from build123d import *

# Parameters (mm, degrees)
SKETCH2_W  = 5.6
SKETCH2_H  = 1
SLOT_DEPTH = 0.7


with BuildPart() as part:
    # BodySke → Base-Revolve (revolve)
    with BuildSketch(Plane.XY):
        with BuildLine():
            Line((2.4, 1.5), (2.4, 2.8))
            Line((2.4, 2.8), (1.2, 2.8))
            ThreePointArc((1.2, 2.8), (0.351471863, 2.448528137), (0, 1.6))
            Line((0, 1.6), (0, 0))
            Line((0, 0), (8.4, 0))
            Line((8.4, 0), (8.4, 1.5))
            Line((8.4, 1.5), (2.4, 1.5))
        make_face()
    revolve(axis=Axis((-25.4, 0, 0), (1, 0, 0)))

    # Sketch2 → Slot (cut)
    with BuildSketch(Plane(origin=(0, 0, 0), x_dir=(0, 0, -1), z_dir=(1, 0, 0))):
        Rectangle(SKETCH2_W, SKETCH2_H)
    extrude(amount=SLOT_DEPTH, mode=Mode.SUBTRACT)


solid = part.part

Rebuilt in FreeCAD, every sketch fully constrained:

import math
import FreeCAD as App
import Part
import Sketcher


def add_polygon(sketch, points):
    """Adds a closed chain of lines whose ends are joined by coincident constraints."""
    first, n = sketch.GeometryCount, len(points)
    for a, b in zip(points, points[1:] + points[:1]):
        sketch.addGeometry(Part.LineSegment(App.Vector(*a, 0), App.Vector(*b, 0)), False)
    for i in range(n):
        sketch.addConstraint(Sketcher.Constraint("Coincident", first + i, 2, first + (i + 1) % n, 1))

doc = App.newDocument("Part")
params = doc.addObject("Spreadsheet::Sheet", "Params")
for row, (alias, value) in enumerate([
    ("sketch1_radius", "1.2 mm"),
    ("sketch1_width", "6 mm"),
    ("sketch1_width2", "1.2 mm"),
    ("sketch1_height", "1.3 mm"),
    ("sketch1_height2", "1.6 mm"),
    ("revolution_angle", "360 deg"),
    ("sketch2_width", "1 mm"),
    ("sketch2_height", "5.6 mm"),
    ("pocket1_length", "0.7 mm"),
], start=1):
    params.set(f"A{row}", alias)
    params.set(f"B{row}", "=" + value)
    params.setAlias(f"B{row}", alias)

body = doc.addObject("PartDesign::Body", "Body")

# Sketch on XY plane
sketch1 = body.newObject("Sketcher::SketchObject", "Sketch")
sketch1.AttachmentSupport = (doc.getObject("XY_Plane"), [""])
sketch1.MapMode = "FlatFace"
sketch1.addGeometry(Part.LineSegment(App.Vector(2.4, 1.5, 0), App.Vector(2.4, 2.8, 0)), False)
sketch1.addGeometry(Part.LineSegment(App.Vector(2.4, 2.8, 0), App.Vector(1.2, 2.8, 0)), False)
sketch1.addGeometry(Part.ArcOfCircle(Part.Circle(App.Vector(1.2, 1.6, 0), App.Vector(0, 0, 1), 1.2), math.radians(90), math.radians(180)), False)
sketch1.addGeometry(Part.LineSegment(App.Vector(0, 1.6, 0), App.Vector(0, 0, 0)), False)
sketch1.addGeometry(Part.LineSegment(App.Vector(0, 0, 0), App.Vector(8.4, 0, 0)), False)
sketch1.addGeometry(Part.LineSegment(App.Vector(8.4, 0, 0), App.Vector(8.4, 1.5, 0)), False)
sketch1.addGeometry(Part.LineSegment(App.Vector(8.4, 1.5, 0), App.Vector(2.4, 1.5, 0)), False)
sketch1.addConstraint(Sketcher.Constraint("Coincident", 0, 2, 1, 1))
sketch1.addConstraint(Sketcher.Constraint("Tangent", 1, 2, 2, 1))
sketch1.addConstraint(Sketcher.Constraint("Tangent", 2, 2, 3, 1))
sketch1.addConstraint(Sketcher.Constraint("Coincident", 3, 2, 4, 1))
sketch1.addConstraint(Sketcher.Constraint("Coincident", 4, 2, 5, 1))
sketch1.addConstraint(Sketcher.Constraint("Coincident", 5, 2, 6, 1))
sketch1.addConstraint(Sketcher.Constraint("Coincident", 6, 2, 0, 1))
sketch1.addConstraint(Sketcher.Constraint("Vertical", 0))
sketch1.addConstraint(Sketcher.Constraint("Horizontal", 1))
sketch1.addConstraint(Sketcher.Constraint("Vertical", 3))
sketch1.addConstraint(Sketcher.Constraint("Horizontal", 4))
sketch1.addConstraint(Sketcher.Constraint("Vertical", 5))
sketch1.addConstraint(Sketcher.Constraint("Horizontal", 6))
sketch1.addConstraint(Sketcher.Constraint("Coincident", 3, 2, -1, 1))
sketch1.addConstraint(Sketcher.Constraint("Radius", 2, 1.2))
sketch1.addConstraint(Sketcher.Constraint("DistanceX", 6, 2, 6, 1, 6.0))
sketch1.addConstraint(Sketcher.Constraint("DistanceX", 1, 2, 1, 1, 1.2))
sketch1.addConstraint(Sketcher.Constraint("DistanceY", 0, 1, 0, 2, 1.3))
sketch1.addConstraint(Sketcher.Constraint("DistanceY", 3, 2, 3, 1, 1.6))
sketch1.setExpression("Constraints[14]", "Params.sketch1_radius")
sketch1.setExpression("Constraints[15]", "Params.sketch1_width")
sketch1.setExpression("Constraints[16]", "Params.sketch1_width2")
sketch1.setExpression("Constraints[17]", "Params.sketch1_height")
sketch1.setExpression("Constraints[18]", "Params.sketch1_height2")
revolution = body.newObject("PartDesign::Revolution", "Revolution")
revolution.Profile = sketch1
revolution.ReferenceAxis = (sketch1, ["H_Axis"])
revolution.setExpression("Angle", "Params.revolution_angle")

# Sketch on YZ plane
sketch2 = body.newObject("Sketcher::SketchObject", "Sketch001")
sketch2.AttachmentSupport = (doc.getObject("YZ_Plane"), [""])
sketch2.MapMode = "FlatFace"
add_polygon(sketch2, [(0.5, 2.8), (-0.5, 2.8), (-0.5, -2.8), (0.5, -2.8)])  # lines 0-3
sketch2.addConstraint(Sketcher.Constraint("Horizontal", 0))
sketch2.addConstraint(Sketcher.Constraint("Vertical", 1))
sketch2.addConstraint(Sketcher.Constraint("Horizontal", 2))
sketch2.addConstraint(Sketcher.Constraint("Vertical", 3))
sketch2.addConstraint(Sketcher.Constraint("Symmetric", 0, 2, 2, 2, -1, 1))
sketch2.addConstraint(Sketcher.Constraint("DistanceX", 0, 2, 0, 1, 1.0))
sketch2.addConstraint(Sketcher.Constraint("DistanceY", 1, 2, 1, 1, 5.6))
sketch2.setExpression("Constraints[9]", "Params.sketch2_width")
sketch2.setExpression("Constraints[10]", "Params.sketch2_height")
pocket1 = body.newObject("PartDesign::Pocket", "Pocket")
pocket1.Profile = sketch2
pocket1.setExpression("Length", "Params.pocket1_length")
pocket1.Reversed = True

doc.recompute()
